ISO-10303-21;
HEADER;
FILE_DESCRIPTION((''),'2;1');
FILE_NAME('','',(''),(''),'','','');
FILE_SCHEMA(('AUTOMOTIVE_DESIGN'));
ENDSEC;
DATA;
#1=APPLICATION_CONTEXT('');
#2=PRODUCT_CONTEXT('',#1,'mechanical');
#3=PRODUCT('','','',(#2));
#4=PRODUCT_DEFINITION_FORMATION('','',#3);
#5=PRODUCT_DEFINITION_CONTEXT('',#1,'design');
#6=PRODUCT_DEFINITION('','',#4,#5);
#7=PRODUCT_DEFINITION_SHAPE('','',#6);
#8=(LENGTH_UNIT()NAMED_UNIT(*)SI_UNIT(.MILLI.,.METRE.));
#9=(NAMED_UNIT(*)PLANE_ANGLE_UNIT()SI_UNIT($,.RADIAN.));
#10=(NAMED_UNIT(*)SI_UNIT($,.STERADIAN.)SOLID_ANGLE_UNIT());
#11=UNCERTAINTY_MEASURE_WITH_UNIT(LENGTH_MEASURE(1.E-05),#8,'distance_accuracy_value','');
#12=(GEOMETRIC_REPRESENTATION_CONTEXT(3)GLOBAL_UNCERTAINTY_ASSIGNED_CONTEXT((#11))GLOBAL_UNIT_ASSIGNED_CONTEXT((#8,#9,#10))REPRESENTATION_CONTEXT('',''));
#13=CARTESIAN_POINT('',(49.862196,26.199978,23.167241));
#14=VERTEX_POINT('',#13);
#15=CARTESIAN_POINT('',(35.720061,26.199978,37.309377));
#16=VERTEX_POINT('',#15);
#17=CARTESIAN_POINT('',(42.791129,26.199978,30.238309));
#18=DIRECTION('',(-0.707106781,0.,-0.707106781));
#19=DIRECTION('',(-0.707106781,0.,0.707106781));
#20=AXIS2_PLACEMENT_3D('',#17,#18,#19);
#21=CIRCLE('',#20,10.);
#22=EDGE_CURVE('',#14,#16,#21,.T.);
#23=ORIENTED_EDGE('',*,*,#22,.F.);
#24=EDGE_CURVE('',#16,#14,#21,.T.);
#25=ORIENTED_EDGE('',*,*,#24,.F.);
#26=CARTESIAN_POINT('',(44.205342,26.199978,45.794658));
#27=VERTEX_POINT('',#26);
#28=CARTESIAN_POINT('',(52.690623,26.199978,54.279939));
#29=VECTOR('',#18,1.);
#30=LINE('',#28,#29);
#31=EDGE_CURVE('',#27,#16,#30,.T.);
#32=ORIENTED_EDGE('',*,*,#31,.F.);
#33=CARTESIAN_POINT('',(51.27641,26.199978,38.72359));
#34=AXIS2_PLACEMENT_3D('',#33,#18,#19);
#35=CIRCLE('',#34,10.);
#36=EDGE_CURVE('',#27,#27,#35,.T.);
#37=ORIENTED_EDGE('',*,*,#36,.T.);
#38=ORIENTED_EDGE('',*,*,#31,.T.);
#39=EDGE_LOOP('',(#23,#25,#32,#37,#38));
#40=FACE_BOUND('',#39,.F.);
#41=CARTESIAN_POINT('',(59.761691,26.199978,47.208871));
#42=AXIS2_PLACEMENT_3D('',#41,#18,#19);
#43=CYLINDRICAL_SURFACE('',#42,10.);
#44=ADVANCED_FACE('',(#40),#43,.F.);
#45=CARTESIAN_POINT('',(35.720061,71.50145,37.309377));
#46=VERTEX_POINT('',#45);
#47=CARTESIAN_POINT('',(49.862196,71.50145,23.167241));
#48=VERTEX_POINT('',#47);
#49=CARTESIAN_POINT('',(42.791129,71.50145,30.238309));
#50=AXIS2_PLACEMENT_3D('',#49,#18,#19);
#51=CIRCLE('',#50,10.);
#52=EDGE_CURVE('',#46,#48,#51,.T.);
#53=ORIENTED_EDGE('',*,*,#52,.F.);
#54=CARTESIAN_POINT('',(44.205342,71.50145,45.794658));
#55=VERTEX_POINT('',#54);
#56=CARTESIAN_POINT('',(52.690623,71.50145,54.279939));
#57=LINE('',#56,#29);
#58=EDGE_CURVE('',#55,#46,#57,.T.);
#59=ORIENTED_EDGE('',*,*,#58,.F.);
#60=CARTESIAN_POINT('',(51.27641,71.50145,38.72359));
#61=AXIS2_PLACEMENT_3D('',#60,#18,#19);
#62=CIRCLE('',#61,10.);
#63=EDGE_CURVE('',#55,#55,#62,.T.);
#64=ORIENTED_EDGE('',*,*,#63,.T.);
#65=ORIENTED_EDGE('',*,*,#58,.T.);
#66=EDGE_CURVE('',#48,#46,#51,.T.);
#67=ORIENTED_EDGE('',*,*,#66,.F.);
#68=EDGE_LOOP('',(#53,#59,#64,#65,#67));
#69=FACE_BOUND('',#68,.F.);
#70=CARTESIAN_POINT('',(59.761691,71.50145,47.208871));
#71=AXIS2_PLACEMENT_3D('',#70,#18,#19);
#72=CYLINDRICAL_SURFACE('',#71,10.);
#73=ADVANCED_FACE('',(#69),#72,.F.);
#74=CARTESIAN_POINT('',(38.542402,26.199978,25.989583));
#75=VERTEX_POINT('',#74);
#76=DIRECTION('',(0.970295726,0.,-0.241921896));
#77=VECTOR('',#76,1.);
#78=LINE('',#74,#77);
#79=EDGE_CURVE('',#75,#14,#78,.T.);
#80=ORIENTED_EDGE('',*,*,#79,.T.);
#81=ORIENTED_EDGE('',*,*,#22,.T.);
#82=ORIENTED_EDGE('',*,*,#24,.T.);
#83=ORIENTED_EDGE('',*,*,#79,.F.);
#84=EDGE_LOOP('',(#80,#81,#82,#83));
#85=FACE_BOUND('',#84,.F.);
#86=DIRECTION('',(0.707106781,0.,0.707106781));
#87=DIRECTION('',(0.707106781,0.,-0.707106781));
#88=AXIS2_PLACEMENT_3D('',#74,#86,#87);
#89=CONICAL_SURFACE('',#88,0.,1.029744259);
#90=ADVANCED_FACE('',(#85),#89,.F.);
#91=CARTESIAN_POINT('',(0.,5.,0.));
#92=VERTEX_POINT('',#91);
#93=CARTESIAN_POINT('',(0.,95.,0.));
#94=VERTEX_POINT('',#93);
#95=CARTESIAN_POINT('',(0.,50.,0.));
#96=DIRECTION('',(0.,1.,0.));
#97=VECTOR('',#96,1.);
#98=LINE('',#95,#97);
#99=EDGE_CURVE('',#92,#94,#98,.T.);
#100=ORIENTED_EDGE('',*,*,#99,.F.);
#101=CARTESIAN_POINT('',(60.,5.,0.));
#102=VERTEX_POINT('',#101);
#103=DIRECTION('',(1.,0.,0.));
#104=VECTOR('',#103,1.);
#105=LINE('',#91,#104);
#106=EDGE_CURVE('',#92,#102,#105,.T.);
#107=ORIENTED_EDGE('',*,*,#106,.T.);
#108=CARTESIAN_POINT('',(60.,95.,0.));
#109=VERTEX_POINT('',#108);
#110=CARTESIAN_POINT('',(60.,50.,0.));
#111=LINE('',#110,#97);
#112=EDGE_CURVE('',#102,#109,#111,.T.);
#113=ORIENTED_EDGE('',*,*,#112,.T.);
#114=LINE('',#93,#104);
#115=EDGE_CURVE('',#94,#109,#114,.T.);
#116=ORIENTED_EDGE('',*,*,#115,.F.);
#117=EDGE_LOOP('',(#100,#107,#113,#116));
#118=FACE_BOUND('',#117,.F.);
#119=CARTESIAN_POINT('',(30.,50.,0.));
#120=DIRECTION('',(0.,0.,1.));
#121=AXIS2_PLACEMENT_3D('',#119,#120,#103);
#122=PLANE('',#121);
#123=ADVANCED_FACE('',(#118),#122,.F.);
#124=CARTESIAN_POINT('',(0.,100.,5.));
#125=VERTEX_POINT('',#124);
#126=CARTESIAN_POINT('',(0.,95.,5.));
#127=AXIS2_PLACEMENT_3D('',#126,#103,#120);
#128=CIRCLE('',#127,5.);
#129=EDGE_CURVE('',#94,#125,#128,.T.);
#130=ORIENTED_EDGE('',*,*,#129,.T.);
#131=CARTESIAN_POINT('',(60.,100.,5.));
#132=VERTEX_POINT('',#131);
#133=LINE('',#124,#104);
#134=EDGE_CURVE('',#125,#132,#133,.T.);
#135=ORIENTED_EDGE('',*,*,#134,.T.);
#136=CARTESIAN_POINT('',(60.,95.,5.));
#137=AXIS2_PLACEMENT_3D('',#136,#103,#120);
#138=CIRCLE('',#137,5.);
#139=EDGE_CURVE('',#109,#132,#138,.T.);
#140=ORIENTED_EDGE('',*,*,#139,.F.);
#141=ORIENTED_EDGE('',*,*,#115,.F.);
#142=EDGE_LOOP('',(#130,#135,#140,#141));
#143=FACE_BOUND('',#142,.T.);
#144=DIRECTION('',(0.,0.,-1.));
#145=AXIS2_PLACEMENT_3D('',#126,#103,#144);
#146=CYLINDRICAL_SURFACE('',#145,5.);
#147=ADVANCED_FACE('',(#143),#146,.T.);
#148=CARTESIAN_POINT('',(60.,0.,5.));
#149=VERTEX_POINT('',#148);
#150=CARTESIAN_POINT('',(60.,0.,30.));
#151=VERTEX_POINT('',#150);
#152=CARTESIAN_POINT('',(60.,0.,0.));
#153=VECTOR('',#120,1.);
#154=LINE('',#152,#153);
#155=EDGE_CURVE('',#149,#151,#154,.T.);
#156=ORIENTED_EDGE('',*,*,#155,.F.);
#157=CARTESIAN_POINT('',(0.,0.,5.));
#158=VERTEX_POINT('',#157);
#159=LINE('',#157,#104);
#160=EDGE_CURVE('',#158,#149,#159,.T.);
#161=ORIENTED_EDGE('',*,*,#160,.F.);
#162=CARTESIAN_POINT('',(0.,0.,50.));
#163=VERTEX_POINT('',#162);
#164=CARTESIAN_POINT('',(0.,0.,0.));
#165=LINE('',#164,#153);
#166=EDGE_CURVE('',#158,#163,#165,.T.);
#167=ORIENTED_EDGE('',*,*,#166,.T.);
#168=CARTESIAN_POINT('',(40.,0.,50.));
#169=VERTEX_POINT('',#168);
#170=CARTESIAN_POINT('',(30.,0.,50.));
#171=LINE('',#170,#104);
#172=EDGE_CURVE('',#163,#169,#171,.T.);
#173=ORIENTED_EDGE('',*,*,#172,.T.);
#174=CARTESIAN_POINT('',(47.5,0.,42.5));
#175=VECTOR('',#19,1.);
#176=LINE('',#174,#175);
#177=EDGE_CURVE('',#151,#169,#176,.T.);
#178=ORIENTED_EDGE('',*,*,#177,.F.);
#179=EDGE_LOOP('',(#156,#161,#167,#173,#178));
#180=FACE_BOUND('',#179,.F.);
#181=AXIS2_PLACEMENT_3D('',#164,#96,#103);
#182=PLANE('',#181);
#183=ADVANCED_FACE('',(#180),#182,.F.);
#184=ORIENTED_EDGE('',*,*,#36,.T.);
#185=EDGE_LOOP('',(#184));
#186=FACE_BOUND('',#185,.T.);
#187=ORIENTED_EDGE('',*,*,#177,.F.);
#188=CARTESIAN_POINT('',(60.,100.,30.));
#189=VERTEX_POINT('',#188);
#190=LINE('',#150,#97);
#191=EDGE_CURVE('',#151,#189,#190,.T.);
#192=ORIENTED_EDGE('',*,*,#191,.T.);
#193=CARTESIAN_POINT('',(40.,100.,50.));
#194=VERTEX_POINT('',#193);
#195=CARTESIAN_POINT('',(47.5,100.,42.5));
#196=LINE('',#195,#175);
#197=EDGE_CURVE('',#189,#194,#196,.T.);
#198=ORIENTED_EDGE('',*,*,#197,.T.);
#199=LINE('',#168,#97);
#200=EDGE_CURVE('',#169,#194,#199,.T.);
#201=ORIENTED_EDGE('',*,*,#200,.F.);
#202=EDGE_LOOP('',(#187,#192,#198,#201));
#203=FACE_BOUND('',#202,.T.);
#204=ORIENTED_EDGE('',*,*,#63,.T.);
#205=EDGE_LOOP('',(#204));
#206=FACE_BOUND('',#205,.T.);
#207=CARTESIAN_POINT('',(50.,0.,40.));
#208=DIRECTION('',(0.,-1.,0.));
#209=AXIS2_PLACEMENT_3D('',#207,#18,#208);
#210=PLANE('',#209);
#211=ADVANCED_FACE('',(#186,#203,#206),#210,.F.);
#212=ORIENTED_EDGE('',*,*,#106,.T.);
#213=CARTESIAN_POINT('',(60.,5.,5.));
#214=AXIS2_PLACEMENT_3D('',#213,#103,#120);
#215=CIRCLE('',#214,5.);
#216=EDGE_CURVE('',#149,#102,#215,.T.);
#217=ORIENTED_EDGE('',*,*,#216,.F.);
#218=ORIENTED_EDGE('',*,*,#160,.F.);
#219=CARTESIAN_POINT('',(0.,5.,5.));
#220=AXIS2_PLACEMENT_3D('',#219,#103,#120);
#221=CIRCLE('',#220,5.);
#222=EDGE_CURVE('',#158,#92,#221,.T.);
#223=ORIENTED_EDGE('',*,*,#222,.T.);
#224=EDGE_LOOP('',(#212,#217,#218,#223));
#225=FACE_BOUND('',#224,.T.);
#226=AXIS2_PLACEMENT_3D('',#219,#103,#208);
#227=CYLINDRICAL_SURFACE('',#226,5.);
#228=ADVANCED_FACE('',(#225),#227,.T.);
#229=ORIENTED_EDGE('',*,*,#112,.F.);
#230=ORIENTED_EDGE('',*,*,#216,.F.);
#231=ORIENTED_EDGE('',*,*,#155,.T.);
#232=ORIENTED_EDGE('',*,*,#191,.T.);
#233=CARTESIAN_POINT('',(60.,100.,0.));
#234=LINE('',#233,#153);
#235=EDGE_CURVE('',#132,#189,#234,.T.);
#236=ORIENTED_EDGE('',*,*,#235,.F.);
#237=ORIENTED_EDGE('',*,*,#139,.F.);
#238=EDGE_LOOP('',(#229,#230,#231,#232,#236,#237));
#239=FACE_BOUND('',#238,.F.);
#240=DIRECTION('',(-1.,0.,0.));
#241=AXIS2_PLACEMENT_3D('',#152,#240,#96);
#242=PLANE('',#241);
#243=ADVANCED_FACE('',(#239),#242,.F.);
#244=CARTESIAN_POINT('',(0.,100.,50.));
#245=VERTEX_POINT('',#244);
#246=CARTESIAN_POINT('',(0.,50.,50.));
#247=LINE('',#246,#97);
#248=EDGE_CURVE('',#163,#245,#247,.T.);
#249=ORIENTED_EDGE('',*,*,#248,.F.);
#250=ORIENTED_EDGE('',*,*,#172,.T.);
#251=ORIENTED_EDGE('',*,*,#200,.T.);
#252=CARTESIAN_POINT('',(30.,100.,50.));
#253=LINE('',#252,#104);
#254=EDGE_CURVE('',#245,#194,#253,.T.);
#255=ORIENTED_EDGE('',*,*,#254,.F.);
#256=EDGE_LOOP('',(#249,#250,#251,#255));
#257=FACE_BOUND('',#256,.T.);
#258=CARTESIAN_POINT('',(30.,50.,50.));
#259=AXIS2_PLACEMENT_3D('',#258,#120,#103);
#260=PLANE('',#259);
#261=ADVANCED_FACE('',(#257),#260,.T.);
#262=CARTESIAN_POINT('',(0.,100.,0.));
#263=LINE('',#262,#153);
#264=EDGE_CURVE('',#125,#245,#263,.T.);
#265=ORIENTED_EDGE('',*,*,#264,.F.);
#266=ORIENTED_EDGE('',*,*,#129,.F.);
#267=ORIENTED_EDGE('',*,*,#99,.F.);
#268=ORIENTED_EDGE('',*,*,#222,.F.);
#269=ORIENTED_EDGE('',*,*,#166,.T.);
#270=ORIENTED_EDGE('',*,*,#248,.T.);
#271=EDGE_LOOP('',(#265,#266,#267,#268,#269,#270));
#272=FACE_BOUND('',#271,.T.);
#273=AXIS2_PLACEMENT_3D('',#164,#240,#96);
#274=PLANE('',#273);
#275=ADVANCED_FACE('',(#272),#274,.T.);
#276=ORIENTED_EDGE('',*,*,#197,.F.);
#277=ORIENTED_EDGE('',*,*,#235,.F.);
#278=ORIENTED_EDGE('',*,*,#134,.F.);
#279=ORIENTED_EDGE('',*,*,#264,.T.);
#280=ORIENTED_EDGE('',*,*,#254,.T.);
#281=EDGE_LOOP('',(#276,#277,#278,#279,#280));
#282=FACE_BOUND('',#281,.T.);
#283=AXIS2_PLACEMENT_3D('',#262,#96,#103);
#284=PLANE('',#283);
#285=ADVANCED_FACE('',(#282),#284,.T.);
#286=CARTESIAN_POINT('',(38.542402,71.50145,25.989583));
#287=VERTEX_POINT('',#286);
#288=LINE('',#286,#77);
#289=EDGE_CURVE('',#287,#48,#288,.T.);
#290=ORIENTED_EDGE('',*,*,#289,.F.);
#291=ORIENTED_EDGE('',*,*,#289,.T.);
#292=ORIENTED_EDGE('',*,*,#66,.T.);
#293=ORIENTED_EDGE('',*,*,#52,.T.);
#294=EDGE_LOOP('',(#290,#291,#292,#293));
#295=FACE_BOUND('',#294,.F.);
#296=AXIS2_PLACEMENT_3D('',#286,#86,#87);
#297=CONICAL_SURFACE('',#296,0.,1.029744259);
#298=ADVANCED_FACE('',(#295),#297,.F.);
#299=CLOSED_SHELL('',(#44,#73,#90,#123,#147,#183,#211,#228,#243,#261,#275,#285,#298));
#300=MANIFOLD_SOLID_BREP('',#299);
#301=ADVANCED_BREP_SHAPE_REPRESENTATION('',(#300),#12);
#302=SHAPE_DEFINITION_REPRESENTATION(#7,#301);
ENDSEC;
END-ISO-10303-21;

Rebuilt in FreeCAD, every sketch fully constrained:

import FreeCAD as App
import Part
import Sketcher
from FreeCAD import Vector
Q = App.Units.Quantity


def edges_at(feature, points):
    """Names of the edges that pass closest to the given points."""
    edges = feature.Shape.Edges
    near = lambda p: min(range(len(edges)), key=lambda i: edges[i].distToShape(Part.Vertex(*p))[0])
    return sorted({f"Edge{near(p) + 1}" for p in points})


def add_polygon(sketch, points):
    """Adds a closed chain of lines whose ends are joined by coincident constraints."""
    first, n = sketch.GeometryCount, len(points)
    for a, b in zip(points, points[1:] + points[:1]):
        sketch.addGeometry(Part.LineSegment(App.Vector(*a, 0), App.Vector(*b, 0)), False)
    for i in range(n):
        sketch.addConstraint(Sketcher.Constraint("Coincident", first + i, 2, first + (i + 1) % n, 1))

doc = App.newDocument("Part")
body = doc.addObject("PartDesign::Body", "Body")

# Sketch on XY plane
sketch1 = body.newObject("Sketcher::SketchObject", "Sketch")
sketch1.AttachmentSupport = (doc.getObject("XY_Plane"), [""])
sketch1.MapMode = "FlatFace"
add_polygon(sketch1, [(0, 100), (0, 0), (60, 0), (60, 100)])  # lines 0-3
sketch1.addConstraint([
    Sketcher.Constraint("Vertical", 0),
    Sketcher.Constraint("Horizontal", 1),
    Sketcher.Constraint("Vertical", 2),
    Sketcher.Constraint("Horizontal", 3),
    Sketcher.Constraint("Coincident", 0, 2, -1, 1),
    Sketcher.Constraint("DistanceX", 1, 1, 1, 2, Q("60 mm")),
    Sketcher.Constraint("DistanceY", 0, 2, 0, 1, Q("100 mm")),
])
pad1 = body.newObject("PartDesign::Pad", "Pad")
pad1.Profile = sketch1
pad1.Length = 50
doc.recompute()

chamfer = body.newObject("PartDesign::Chamfer", "Chamfer")
chamfer.Base = (pad1, edges_at(pad1, [(60, 50, 50)]))
chamfer.Size = 20

# Sketch on an angled plane
sketch2 = body.newObject("Sketcher::SketchObject", "Sketch001")
sketch2.Placement = App.Placement(Vector(45, 0, 45), App.Rotation(Vector(0.707106781, 0, -0.707106781), Vector(0, 0.999999999, 0), Vector(0.707106781, 0, 0.707106781), "ZXY"))
sketch2.addGeometry([
    Part.Circle(Vector(9, 26, 0), Vector(0, 0, 1), 10),
    Part.Circle(Vector(9, 72, 0), Vector(0, 0, 1), 10),
], False)
sketch2.addConstraint([
    Sketcher.Constraint("Equal", 0, 1),
    Sketcher.Constraint("Vertical", 0, 3, 1, 3),
    Sketcher.Constraint("Diameter", 0, Q("20 mm")),
    Sketcher.Constraint("DistanceY", -1, 1, 1, 3, Q("71.50145 mm")),
    Sketcher.Constraint("DistanceX", -1, 1, 0, 3, Q("8.876184 mm")),
    Sketcher.Constraint("DistanceY", -1, 1, 0, 3, Q("26.199978 mm")),
])
doc.recompute()
hole = body.newObject("PartDesign::Hole", "Hole")
hole.Profile = sketch2
hole.ThreadType = "None"
hole.Diameter = 20
hole.DepthType = "Dimension"
hole.Depth = 12
hole.DrillPoint = "Angled"
hole.DrillPointAngle = 118
doc.recompute()

fillet = body.newObject("PartDesign::Fillet", "Fillet")
fillet.Base = (hole, edges_at(hole, [(30, 0, 0)]))
fillet.Radius = 5
doc.recompute()

fillet2 = body.newObject("PartDesign::Fillet", "Fillet001")
fillet2.Base = (fillet, edges_at(fillet, [(30, 100, 0)]))
fillet2.Radius = 5

doc.recompute()
